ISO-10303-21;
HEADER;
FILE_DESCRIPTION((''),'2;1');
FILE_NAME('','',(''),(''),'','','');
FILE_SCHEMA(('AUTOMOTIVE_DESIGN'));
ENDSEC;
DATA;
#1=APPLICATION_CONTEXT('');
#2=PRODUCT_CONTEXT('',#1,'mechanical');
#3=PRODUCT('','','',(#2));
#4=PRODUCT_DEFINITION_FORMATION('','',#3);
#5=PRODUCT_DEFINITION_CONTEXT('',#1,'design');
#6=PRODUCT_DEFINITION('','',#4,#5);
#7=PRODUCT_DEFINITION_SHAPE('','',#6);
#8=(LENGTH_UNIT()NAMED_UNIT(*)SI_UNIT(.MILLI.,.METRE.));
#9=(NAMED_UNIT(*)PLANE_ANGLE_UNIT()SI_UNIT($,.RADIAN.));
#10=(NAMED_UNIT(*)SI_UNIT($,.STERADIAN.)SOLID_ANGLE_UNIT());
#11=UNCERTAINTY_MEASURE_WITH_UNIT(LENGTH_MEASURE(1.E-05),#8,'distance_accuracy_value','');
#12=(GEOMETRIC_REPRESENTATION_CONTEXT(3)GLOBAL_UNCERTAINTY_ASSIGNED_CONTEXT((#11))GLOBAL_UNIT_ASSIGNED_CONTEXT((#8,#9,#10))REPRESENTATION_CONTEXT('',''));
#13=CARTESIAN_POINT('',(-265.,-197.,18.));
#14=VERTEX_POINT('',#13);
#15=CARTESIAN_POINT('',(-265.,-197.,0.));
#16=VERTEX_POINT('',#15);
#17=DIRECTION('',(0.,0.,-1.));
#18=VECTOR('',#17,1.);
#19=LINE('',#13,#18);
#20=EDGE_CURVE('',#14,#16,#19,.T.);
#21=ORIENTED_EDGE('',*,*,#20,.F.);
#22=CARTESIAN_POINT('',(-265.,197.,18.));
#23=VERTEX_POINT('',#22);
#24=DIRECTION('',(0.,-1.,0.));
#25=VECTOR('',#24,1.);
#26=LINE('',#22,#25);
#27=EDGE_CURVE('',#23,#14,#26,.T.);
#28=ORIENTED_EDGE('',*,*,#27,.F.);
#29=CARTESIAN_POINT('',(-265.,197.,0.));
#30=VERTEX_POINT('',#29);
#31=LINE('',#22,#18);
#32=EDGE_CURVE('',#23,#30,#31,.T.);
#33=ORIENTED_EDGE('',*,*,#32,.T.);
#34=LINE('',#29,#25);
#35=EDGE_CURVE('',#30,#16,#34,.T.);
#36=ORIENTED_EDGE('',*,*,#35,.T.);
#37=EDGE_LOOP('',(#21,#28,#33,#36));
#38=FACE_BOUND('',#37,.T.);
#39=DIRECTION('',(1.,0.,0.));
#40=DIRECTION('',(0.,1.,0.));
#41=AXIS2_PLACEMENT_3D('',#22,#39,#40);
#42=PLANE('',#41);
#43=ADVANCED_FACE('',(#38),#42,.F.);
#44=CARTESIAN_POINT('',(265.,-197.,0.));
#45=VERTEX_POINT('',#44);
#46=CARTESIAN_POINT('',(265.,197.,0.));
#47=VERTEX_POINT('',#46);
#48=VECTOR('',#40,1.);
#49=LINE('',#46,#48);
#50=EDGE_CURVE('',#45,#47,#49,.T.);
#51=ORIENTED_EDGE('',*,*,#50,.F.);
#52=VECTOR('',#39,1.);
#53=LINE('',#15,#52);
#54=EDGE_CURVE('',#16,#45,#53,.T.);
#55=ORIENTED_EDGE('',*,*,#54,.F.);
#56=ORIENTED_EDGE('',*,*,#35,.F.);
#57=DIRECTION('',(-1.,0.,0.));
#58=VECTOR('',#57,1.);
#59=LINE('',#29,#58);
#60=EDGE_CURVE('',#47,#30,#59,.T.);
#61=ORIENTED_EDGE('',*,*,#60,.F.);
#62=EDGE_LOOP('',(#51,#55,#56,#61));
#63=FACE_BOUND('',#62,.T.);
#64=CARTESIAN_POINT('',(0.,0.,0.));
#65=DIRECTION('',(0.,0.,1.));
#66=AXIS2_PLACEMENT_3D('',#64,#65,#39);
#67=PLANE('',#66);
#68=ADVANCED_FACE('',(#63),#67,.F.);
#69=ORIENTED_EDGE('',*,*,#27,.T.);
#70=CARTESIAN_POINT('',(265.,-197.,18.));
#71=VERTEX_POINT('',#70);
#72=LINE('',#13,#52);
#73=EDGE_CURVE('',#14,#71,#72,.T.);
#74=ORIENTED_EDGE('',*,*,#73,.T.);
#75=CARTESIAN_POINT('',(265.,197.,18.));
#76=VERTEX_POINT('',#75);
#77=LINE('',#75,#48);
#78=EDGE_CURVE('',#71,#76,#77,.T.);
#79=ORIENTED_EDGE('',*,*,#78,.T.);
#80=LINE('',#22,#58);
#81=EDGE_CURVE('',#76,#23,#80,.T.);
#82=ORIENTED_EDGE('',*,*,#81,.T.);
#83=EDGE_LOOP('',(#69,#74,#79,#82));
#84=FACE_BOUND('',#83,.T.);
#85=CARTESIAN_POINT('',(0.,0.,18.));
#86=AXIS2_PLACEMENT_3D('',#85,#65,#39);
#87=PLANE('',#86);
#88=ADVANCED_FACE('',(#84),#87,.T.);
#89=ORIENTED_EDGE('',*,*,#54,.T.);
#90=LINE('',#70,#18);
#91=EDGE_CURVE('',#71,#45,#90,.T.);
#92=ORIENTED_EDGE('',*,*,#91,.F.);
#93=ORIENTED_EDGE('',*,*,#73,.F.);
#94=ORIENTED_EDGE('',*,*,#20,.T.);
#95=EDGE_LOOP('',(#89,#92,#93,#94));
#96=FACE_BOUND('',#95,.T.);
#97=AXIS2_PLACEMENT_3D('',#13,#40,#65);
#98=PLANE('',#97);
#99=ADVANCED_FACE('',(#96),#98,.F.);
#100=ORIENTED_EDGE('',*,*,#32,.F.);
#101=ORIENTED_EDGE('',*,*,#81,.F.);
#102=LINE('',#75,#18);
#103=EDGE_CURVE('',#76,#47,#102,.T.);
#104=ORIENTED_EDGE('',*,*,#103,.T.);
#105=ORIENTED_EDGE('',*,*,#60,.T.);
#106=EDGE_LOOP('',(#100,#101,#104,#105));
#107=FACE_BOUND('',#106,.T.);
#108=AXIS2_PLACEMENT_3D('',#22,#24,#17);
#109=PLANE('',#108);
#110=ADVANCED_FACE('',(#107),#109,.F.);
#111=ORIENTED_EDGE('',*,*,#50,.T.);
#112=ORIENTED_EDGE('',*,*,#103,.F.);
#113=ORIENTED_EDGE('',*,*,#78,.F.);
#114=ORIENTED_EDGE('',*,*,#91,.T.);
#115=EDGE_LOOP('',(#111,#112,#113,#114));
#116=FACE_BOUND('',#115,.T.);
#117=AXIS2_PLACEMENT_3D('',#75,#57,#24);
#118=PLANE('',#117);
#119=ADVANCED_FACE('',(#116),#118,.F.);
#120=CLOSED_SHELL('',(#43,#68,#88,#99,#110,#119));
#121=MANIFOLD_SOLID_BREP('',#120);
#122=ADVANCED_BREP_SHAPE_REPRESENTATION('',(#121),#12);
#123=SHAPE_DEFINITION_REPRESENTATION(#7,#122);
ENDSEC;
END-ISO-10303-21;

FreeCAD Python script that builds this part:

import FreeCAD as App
import Part
import Sketcher
from FreeCAD import Vector
Q = App.Units.Quantity

doc = App.newDocument("Part")
body = doc.addObject("PartDesign::Body", "Body")

sketch1 = doc.addObject("Sketcher::SketchObject", "Sketch")
body.addObject(sketch1)
sketch1.AttachmentSupport = (doc.XY_Plane, [""])
sketch1.MapMode = "FlatFace"
sketch1.addGeometry(Part.LineSegment(Vector(-265, 197, 0), Vector(-265, -197, 0)), False)
sketch1.addGeometry(Part.LineSegment(Vector(-265, -197, 0), Vector(265, -197, 0)), False)
sketch1.addGeometry(Part.LineSegment(Vector(265, -197, 0), Vector(265, 197, 0)), False)
sketch1.addGeometry(Part.LineSegment(Vector(265, 197, 0), Vector(-265, 197, 0)), False)
sketch1.addConstraint(Sketcher.Constraint("Coincident", 0, 2, 1, 1))
sketch1.addConstraint(Sketcher.Constraint("Coincident", 1, 2, 2, 1))
sketch1.addConstraint(Sketcher.Constraint("Coincident", 2, 2, 3, 1))
sketch1.addConstraint(Sketcher.Constraint("Coincident", 3, 2, 0, 1))
sketch1.addConstraint(Sketcher.Constraint("Vertical", 0))
sketch1.addConstraint(Sketcher.Constraint("Horizontal", 1))
sketch1.addConstraint(Sketcher.Constraint("Vertical", 2))
sketch1.addConstraint(Sketcher.Constraint("Horizontal", 3))
sketch1.addConstraint(Sketcher.Constraint("Symmetric", 0, 2, 2, 2, -1, 1))
sketch1.addConstraint(Sketcher.Constraint("DistanceX", 1, 1, 1, 2, Q("530 mm")))
sketch1.addConstraint(Sketcher.Constraint("DistanceY", 0, 2, 0, 1, Q("394 mm")))
pad1 = doc.addObject("PartDesign::Pad", "Pad")
body.addObject(pad1)
pad1.Profile = sketch1
pad1.Length = 18

doc.recompute()
